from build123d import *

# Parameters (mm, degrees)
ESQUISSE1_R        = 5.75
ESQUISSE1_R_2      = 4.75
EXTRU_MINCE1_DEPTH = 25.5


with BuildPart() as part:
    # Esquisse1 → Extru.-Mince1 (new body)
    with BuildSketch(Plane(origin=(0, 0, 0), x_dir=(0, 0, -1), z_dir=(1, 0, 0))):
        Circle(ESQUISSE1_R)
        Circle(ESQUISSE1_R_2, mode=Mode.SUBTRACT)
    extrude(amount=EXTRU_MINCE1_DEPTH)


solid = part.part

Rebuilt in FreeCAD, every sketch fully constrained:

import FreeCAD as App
import Part
import Sketcher
from FreeCAD import Vector
Q = App.Units.Quantity

doc = App.newDocument("Part")
params = doc.addObject("Spreadsheet::Sheet", "Params")
for row, (alias, value) in enumerate([
    ("sketch1_diameter", "11.5 mm"),
    ("sketch1_diameter2", "9.5 mm"),
    ("pad1_length", "25.5 mm"),
], start=1):
    params.set(f"A{row}", alias)
    params.set(f"B{row}", "=" + value)
    params.setAlias(f"B{row}", alias)

body = doc.addObject("PartDesign::Body", "Body")

# Sketch on YZ plane
sketch1 = body.newObject("Sketcher::SketchObject", "Sketch")
sketch1.AttachmentSupport = (doc.getObject("YZ_Plane"), [""])
sketch1.MapMode = "FlatFace"
sketch1.addGeometry([
    Part.Circle(Vector(0, 0, 0), Vector(0, 0, 1), 5.75),
    Part.Circle(Vector(0, 0, 0), Vector(0, 0, 1), 4.75),
], False)
sketch1.addConstraint([
    Sketcher.Constraint("Coincident", 0, 3, -1, 1),
    Sketcher.Constraint("Coincident", 1, 3, -1, 1),
    Sketcher.Constraint("Diameter", 0, Q("11.5 mm")),
    Sketcher.Constraint("Diameter", 1, Q("9.5 mm")),
])
sketch1.setExpression("Constraints[2]", "Params.sketch1_diameter")
sketch1.setExpression("Constraints[3]", "Params.sketch1_diameter2")
pad1 = body.newObject("PartDesign::Pad", "Pad")
pad1.Profile = sketch1
pad1.setExpression("Length", "Params.pad1_length")

doc.recompute()
